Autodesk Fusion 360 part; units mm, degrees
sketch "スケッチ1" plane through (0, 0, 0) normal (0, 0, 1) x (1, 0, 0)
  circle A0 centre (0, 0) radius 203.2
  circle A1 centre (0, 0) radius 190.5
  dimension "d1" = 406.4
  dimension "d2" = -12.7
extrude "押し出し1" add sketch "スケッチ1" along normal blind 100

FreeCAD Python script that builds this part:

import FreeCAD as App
import Part
import Sketcher
from FreeCAD import Vector
Q = App.Units.Quantity

doc = App.newDocument("Part")
body = doc.addObject("PartDesign::Body", "Body")

# Sketch on XY plane
sketch1 = body.newObject("Sketcher::SketchObject", "Sketch")
sketch1.AttachmentSupport = (doc.getObject("XY_Plane"), [""])
sketch1.MapMode = "FlatFace"
sketch1.addGeometry([
    Part.Circle(Vector(0, 0, 0), Vector(0, 0, 1), 203),
    Part.Circle(Vector(0, 0, 0), Vector(0, 0, 1), 190),
], False)
sketch1.addConstraint([
    Sketcher.Constraint("Coincident", 0, 3, -1, 1),
    Sketcher.Constraint("Coincident", 1, 3, -1, 1),
    Sketcher.Constraint("Diameter", 0, Q("16 in")),
    Sketcher.Constraint("Diameter", 1, Q("15 in")),
])
pad1 = body.newObject("PartDesign::Pad", "Pad")
pad1.Profile = sketch1
pad1.Length = Q("3.9370079 in")

doc.recompute()
